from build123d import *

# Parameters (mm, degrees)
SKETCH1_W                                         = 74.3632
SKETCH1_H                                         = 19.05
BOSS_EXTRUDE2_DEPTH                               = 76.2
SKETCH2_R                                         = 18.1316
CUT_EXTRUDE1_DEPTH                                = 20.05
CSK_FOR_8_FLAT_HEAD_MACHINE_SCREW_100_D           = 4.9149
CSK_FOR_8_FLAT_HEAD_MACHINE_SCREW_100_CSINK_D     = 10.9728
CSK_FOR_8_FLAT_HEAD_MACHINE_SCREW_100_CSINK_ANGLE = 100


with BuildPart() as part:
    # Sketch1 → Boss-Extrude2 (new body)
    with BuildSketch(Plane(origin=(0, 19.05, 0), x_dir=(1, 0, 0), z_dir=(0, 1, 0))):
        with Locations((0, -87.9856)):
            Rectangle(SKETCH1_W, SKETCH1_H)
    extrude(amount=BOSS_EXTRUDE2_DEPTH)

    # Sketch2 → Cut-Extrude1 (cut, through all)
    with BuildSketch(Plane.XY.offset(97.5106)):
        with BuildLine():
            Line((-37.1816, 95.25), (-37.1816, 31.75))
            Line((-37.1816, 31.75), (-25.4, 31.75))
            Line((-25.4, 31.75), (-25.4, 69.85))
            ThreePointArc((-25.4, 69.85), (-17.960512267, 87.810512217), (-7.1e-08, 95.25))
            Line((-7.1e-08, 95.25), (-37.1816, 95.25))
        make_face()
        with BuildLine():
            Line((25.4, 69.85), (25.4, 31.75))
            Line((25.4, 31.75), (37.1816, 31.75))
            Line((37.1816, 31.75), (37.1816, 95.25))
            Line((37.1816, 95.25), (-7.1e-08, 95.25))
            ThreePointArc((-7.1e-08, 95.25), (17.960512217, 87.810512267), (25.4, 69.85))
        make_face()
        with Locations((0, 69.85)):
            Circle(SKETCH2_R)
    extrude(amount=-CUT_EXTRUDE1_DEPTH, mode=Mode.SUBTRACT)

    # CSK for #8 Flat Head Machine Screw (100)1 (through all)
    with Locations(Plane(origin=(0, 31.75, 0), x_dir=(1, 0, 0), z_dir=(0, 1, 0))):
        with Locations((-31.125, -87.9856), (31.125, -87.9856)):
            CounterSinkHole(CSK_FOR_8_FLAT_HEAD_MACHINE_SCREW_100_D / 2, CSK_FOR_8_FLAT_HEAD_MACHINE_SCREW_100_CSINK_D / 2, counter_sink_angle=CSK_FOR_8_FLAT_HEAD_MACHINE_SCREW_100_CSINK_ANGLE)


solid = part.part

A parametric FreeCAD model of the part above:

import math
import FreeCAD as App
import Part
import Sketcher
Q = App.Units.Quantity

doc = App.newDocument("Part")
body = doc.addObject("PartDesign::Body", "Body")

# Sketch on XZ plane
sketch1 = doc.addObject("Sketcher::SketchObject", "Sketch")
body.addObject(sketch1)
sketch1.AttachmentSupport = (doc.XZ_Plane, [""])
sketch1.MapMode = "FlatFace"
sketch1.AttachmentOffset = App.Placement(App.Vector(0, 0, -0.75 * 25.4), App.Rotation())
sketch1.addGeometry([
    Part.LineSegment(App.Vector(-37, 78, 0), App.Vector(-37, 98, 0)),
    Part.LineSegment(App.Vector(-37, 98, 0), App.Vector(37, 98, 0)),
    Part.LineSegment(App.Vector(37, 98, 0), App.Vector(37, 78, 0)),
    Part.LineSegment(App.Vector(37, 78, 0), App.Vector(-37, 78, 0)),
], False)
sketch1.addConstraint([
    Sketcher.Constraint("Coincident", 0, 2, 1, 1),
    Sketcher.Constraint("Coincident", 1, 2, 2, 1),
    Sketcher.Constraint("Coincident", 2, 2, 3, 1),
    Sketcher.Constraint("Coincident", 3, 2, 0, 1),
    Sketcher.Constraint("Vertical", 0),
    Sketcher.Constraint("Horizontal", 1),
    Sketcher.Constraint("Vertical", 2),
    Sketcher.Constraint("Horizontal", 3),
    Sketcher.Constraint("DistanceY", 0, 1, 0, 2, Q("0.75 in")),
    Sketcher.Constraint("DistanceY", -1, 1, 0, 2, Q("3.839 in")),
    Sketcher.Constraint("DistanceX", 1, 1, 1, 2, 74.3632),
    Sketcher.Constraint("DistanceX", 0, 2, -1, 1, 37.1816),
])
pad1 = doc.addObject("PartDesign::Pad", "Pad")
body.addObject(pad1)
pad1.Profile = sketch1
pad1.Length = Q("3 in")
pad1.Reversed = True

# Sketch on XY plane
sketch2 = doc.addObject("Sketcher::SketchObject", "Sketch001")
body.addObject(sketch2)
sketch2.AttachmentSupport = (doc.XY_Plane, [""])
sketch2.MapMode = "FlatFace"
sketch2.AttachmentOffset = App.Placement(App.Vector(0, 0, 3.839 * 25.4), App.Rotation())
sketch2.addGeometry([
    Part.LineSegment(App.Vector(-37, 95, 0), App.Vector(-37, 32, 0)),  # 0
    Part.LineSegment(App.Vector(-37, 32, 0), App.Vector(-25, 32, 0)),  # 1
    Part.LineSegment(App.Vector(-25, 32, 0), App.Vector(-25, 70, 0)),  # 2
    Part.ArcOfCircle(Part.Circle(App.Vector(0, 70, 0), App.Vector(0, 0, 1), 25), math.radians(90), math.radians(180)),  # 3
    Part.LineSegment(App.Vector(0, 95, 0), App.Vector(-37, 95, 0)),  # 4
    Part.LineSegment(App.Vector(25, 70, 0), App.Vector(25, 32, 0)),  # 5
    Part.LineSegment(App.Vector(25, 32, 0), App.Vector(37, 32, 0)),  # 6
    Part.LineSegment(App.Vector(37, 32, 0), App.Vector(37, 95, 0)),  # 7
    Part.LineSegment(App.Vector(37, 95, 0), App.Vector(0, 95, 0)),  # 8
    Part.ArcOfCircle(Part.Circle(App.Vector(0, 70, 0), App.Vector(0, 0, 1), 25), math.radians(0), math.radians(90)),  # 9
    Part.Circle(App.Vector(0, 70, 0), App.Vector(0, 0, 1), 18),  # 10
], False)
sketch2.addConstraint([
    Sketcher.Constraint("Coincident", 0, 2, 1, 1),
    Sketcher.Constraint("Coincident", 1, 2, 2, 1),
    Sketcher.Constraint("Tangent", 2, 2, 3, 2),
    Sketcher.Constraint("Tangent", 3, 1, 4, 1),
    Sketcher.Constraint("Coincident", 4, 2, 0, 1),
    Sketcher.Constraint("Coincident", 5, 2, 6, 1),
    Sketcher.Constraint("Coincident", 6, 2, 7, 1),
    Sketcher.Constraint("Coincident", 7, 2, 8, 1),
    Sketcher.Constraint("Tangent", 8, 2, 9, 2),
    Sketcher.Constraint("Tangent", 9, 1, 5, 1),
    Sketcher.Constraint("Vertical", 0),
    Sketcher.Constraint("Horizontal", 1),
    Sketcher.Constraint("Vertical", 2),
    Sketcher.Constraint("Horizontal", 4),
    Sketcher.Constraint("Vertical", 5),
    Sketcher.Constraint("Horizontal", 6),
    Sketcher.Constraint("Vertical", 7),
    Sketcher.Constraint("Horizontal", 8),
    Sketcher.Constraint("Coincident", 9, 3, 3, 3),
    Sketcher.Constraint("Coincident", 10, 3, 3, 3),
    Sketcher.Constraint("Equal", 3, 9),
    Sketcher.Constraint("Symmetric", 1, 2, 5, 2, -2),
    Sketcher.Constraint("Equal", 1, 6),
    Sketcher.Constraint("Radius", 3, Q("1 in")),
    Sketcher.Constraint("DistanceY", 0, 2, 0, 1, Q("2.5 in")),
    Sketcher.Constraint("Diameter", 10, 36.2632),
    Sketcher.Constraint("DistanceY", -1, 1, 3, 3, Q("2.75 in")),
    Sketcher.Constraint("DistanceX", 1, 1, 1, 2, 11.7816),
])
pocket1 = doc.addObject("PartDesign::Pocket", "Pocket")
body.addObject(pocket1)
pocket1.Profile = sketch2
pocket1.Type = "ThroughAll"

# Sketch on XZ plane
sketch3 = doc.addObject("Sketcher::SketchObject", "Sketch002")
body.addObject(sketch3)
sketch3.AttachmentSupport = (doc.XZ_Plane, [""])
sketch3.MapMode = "FlatFace"
sketch3.AttachmentOffset = App.Placement(App.Vector(0, 0, -1.25 * 25.4), App.Rotation())
sketch3.addGeometry([
    Part.Circle(App.Vector(-31.1, 88, 0), App.Vector(0, 0, 1), 2.5),
    Part.Circle(App.Vector(31.1, 88, 0), App.Vector(0, 0, 1), 2.5),
], False)
sketch3.addConstraint([
    Sketcher.Constraint("Equal", 0, 1),
    Sketcher.Constraint("Symmetric", 0, 3, 1, 3, -2),
    Sketcher.Constraint("Diameter", 0, Q("0.1935 in")),
    Sketcher.Constraint("DistanceY", -1, 1, 0, 3, Q("3.464 in")),
    Sketcher.Constraint("DistanceX", 0, 3, -1, 1, 31.125),
])
doc.recompute()
hole = doc.addObject("PartDesign::Hole", "Hole")
body.addObject(hole)
hole.Profile = sketch3
hole.ThreadType = "None"
hole.Diameter = Q("0.1935 in")
hole.DepthType = "ThroughAll"
hole.HoleCutType = "Countersink"
hole.HoleCutDiameter = Q("0.432 in")
hole.HoleCutCountersinkAngle = 100
hole.Reversed = True

doc.recompute()
